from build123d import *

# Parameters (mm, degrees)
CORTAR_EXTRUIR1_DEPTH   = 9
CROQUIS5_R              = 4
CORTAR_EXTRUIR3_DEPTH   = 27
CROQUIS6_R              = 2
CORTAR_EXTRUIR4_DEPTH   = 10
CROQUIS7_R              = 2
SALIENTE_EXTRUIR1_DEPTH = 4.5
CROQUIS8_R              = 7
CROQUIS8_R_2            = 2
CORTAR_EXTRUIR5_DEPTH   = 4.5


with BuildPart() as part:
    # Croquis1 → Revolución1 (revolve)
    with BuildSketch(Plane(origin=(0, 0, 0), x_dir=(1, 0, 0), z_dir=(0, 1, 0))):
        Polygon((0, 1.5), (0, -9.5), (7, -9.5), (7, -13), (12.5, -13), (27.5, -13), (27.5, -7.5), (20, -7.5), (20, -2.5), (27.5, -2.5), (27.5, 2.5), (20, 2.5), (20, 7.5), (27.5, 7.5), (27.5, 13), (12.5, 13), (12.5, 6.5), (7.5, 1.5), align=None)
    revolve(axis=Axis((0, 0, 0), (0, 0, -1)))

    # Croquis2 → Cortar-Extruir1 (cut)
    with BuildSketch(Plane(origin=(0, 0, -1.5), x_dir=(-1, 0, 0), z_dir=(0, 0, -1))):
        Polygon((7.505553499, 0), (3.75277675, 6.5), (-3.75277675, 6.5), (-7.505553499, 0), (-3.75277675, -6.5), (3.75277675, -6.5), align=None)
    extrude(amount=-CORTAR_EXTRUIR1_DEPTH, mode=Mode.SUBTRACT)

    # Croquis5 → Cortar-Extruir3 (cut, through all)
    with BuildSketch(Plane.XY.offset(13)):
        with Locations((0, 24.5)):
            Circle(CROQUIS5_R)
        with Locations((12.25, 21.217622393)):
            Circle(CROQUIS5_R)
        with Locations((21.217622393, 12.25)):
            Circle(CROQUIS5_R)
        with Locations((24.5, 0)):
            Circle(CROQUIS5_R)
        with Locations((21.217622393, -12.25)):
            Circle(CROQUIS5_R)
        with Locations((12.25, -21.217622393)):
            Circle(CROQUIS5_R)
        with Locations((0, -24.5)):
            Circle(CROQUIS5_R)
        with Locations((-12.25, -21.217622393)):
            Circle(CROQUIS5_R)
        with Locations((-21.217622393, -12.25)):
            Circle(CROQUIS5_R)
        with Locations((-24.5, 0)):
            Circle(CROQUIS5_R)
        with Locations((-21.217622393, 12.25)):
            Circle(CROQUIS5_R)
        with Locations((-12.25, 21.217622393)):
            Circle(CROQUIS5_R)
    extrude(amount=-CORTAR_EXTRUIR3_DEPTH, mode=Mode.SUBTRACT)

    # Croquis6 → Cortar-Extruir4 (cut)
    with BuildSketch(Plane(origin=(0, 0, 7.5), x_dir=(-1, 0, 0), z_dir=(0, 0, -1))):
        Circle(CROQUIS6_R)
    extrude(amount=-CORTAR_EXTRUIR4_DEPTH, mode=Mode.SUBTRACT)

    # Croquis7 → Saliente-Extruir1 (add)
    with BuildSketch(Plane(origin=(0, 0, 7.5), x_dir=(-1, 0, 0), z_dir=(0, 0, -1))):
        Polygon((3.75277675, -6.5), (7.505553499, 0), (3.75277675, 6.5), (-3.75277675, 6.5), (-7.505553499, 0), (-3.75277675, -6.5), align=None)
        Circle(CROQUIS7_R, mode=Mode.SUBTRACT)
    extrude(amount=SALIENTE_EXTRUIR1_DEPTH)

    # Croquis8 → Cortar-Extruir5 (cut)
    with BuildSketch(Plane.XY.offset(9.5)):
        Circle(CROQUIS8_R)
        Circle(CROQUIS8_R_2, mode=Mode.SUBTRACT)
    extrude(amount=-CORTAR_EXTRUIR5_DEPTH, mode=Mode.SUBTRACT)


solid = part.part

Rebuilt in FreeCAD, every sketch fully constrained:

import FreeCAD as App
import Part
import Sketcher
from FreeCAD import Vector
Q = App.Units.Quantity


def add_polygon(sketch, points):
    """Adds a closed chain of lines whose ends are joined by coincident constraints."""
    first, n = sketch.GeometryCount, len(points)
    for a, b in zip(points, points[1:] + points[:1]):
        sketch.addGeometry(Part.LineSegment(App.Vector(*a, 0), App.Vector(*b, 0)), False)
    for i in range(n):
        sketch.addConstraint(Sketcher.Constraint("Coincident", first + i, 2, first + (i + 1) % n, 1))

doc = App.newDocument("Part")
body = doc.addObject("PartDesign::Body", "Body")

sketch1 = doc.addObject("Sketcher::SketchObject", "Sketch")
body.addObject(sketch1)
sketch1.AttachmentSupport = (doc.XZ_Plane, [""])
sketch1.MapMode = "FlatFace"
add_polygon(sketch1, [(0, -1.5), (0, 9.5), (7, 9.5), (7, 13), (27.5, 13), (27.5, 7.5), (20, 7.5), (20, 2.5), (27.5, 2.5), (27.5, -2.5), (20, -2.5), (20, -7.5), (27.5, -7.5), (27.5, -13), (12.5, -13), (12.5, -6.5), (7.5, -1.5)])
sketch1.addConstraint([
    Sketcher.Constraint("Vertical", 0),
    Sketcher.Constraint("Horizontal", 1),
    Sketcher.Constraint("Vertical", 2),
    Sketcher.Constraint("Horizontal", 3),
    Sketcher.Constraint("Vertical", 4),
    Sketcher.Constraint("Horizontal", 5),
    Sketcher.Constraint("Vertical", 6),
    Sketcher.Constraint("Horizontal", 7),
    Sketcher.Constraint("Vertical", 8),
    Sketcher.Constraint("Horizontal", 9),
    Sketcher.Constraint("Vertical", 10),
    Sketcher.Constraint("Horizontal", 11),
    Sketcher.Constraint("Vertical", 12),
    Sketcher.Constraint("Horizontal", 13),
    Sketcher.Constraint("Vertical", 14),
    Sketcher.Constraint("Horizontal", 16),
    Sketcher.Constraint("Symmetric", 6, 2, 9, 2, -1),
    Sketcher.Constraint("Symmetric", 4, 2, 11, 2, -1),
    Sketcher.Constraint("PointOnObject", 0, 2, -2),
    Sketcher.Constraint("Vertical", 4, 2, 7, 2),
    Sketcher.Constraint("Equal", 11, 16),
    Sketcher.Constraint("Equal", 6, 8),
    Sketcher.Constraint("Equal", 4, 12),
    Sketcher.Constraint("DistanceX", 1, 1, 1, 2, 7.0),
    Sketcher.Constraint("DistanceX", 13, 2, 13, 1, 15.0),
    Sketcher.Constraint("DistanceY", 0, 1, 0, 2, 11.0),
    Sketcher.Constraint("DistanceY", 6, 2, 6, 1, 5.0),
    Sketcher.Constraint("Angle", 15, Q("135 deg")),
    Sketcher.Constraint("DistanceX", 3, 1, 3, 2, 20.5),
    Sketcher.Constraint("DistanceX", 5, 2, 5, 1, 7.5),
    Sketcher.Constraint("DistanceY", 2, 1, 2, 2, 3.5),
    Sketcher.Constraint("DistanceY", 4, 2, 4, 1, 5.5),
])
revolution = doc.addObject("PartDesign::Revolution", "Revolution")
body.addObject(revolution)
revolution.Profile = sketch1
revolution.ReferenceAxis = (sketch1, ["V_Axis"])
revolution.Angle = 360

sketch2 = doc.addObject("Sketcher::SketchObject", "Sketch001")
body.addObject(sketch2)
sketch2.AttachmentSupport = (doc.XY_Plane, [""])
sketch2.MapMode = "FlatFace"
sketch2.AttachmentOffset = App.Placement(Vector(0, 0, -1.5), App.Rotation())
add_polygon(sketch2, [(-7.505553, 0), (-3.752777, 6.5), (3.752777, 6.5), (7.505553, 0), (3.752777, -6.5), (-3.752777, -6.5)])
sketch2.addConstraint([
    Sketcher.Constraint("Horizontal", 1),
    Sketcher.Constraint("Horizontal", 4),
    Sketcher.Constraint("Symmetric", 0, 2, 3, 2, -1, 1),
    Sketcher.Constraint("Symmetric", 2, 2, 5, 2, -1, 1),
    Sketcher.Constraint("PointOnObject", 2, 2, -1),
    Sketcher.Constraint("Parallel", 2, 5),
    Sketcher.Constraint("Vertical", 1, 2, 3, 2),
    Sketcher.Constraint("Angle", 0, Q("60 deg")),
    Sketcher.Constraint("DistanceY", 3, 2, 1, 2, 13.0),
    Sketcher.Constraint("DistanceX", 1, 1, 1, 2, 7.505554),
])
pocket1 = doc.addObject("PartDesign::Pocket", "Pocket")
body.addObject(pocket1)
pocket1.Profile = sketch2
pocket1.Length = 9
pocket1.Reversed = True

sketch3 = doc.addObject("Sketcher::SketchObject", "Sketch002")
body.addObject(sketch3)
sketch3.AttachmentSupport = (doc.XY_Plane, [""])
sketch3.MapMode = "FlatFace"
sketch3.AttachmentOffset = App.Placement(Vector(0, 0, 13), App.Rotation())
sketch3.addGeometry([
    Part.Circle(Vector(0, 24.5, 0), Vector(0, 0, 1), 4),
    Part.Circle(Vector(12.25, 21.217622, 0), Vector(0, 0, 1), 4),
    Part.Circle(Vector(21.217622, 12.25, 0), Vector(0, 0, 1), 4),
    Part.Circle(Vector(24.5, 0, 0), Vector(0, 0, 1), 4),
    Part.Circle(Vector(21.217622, -12.25, 0), Vector(0, 0, 1), 4),
    Part.Circle(Vector(12.25, -21.217622, 0), Vector(0, 0, 1), 4),
    Part.Circle(Vector(0, -24.5, 0), Vector(0, 0, 1), 4),
    Part.Circle(Vector(-12.25, -21.217622, 0), Vector(0, 0, 1), 4),
    Part.Circle(Vector(-21.217622, -12.25, 0), Vector(0, 0, 1), 4),
    Part.Circle(Vector(-24.5, 0, 0), Vector(0, 0, 1), 4),
    Part.Circle(Vector(-21.217622, 12.25, 0), Vector(0, 0, 1), 4),
    Part.Circle(Vector(-12.25, 21.217622, 0), Vector(0, 0, 1), 4),
], False)
sketch3.addConstraint([
    Sketcher.Constraint("Equal", 0, 1),
    Sketcher.Constraint("Equal", 1, 2),
    Sketcher.Constraint("Equal", 2, 3),
    Sketcher.Constraint("Equal", 3, 4),
    Sketcher.Constraint("Equal", 4, 5),
    Sketcher.Constraint("Equal", 5, 6),
    Sketcher.Constraint("Equal", 6, 7),
    Sketcher.Constraint("Equal", 7, 8),
    Sketcher.Constraint("Equal", 8, 9),
    Sketcher.Constraint("Equal", 9, 10),
    Sketcher.Constraint("Equal", 10, 11),
    Sketcher.Constraint("Symmetric", 0, 3, 6, 3, -1, 1),
    Sketcher.Constraint("Symmetric", 1, 3, 7, 3, -1, 1),
    Sketcher.Constraint("Symmetric", 2, 3, 8, 3, -1, 1),
    Sketcher.Constraint("Symmetric", 3, 3, 9, 3, -1, 1),
    Sketcher.Constraint("Symmetric", 4, 3, 10, 3, -1, 1),
    Sketcher.Constraint("Symmetric", 5, 3, 11, 3, -1, 1),
    Sketcher.Constraint("Symmetric", 5, 3, 7, 3, -2),
    Sketcher.Constraint("Symmetric", 4, 3, 8, 3, -2),
    Sketcher.Constraint("PointOnObject", 0, 3, -2),
    Sketcher.Constraint("PointOnObject", 3, 3, -1),
    Sketcher.Constraint("Diameter", 0, 8.0),
    Sketcher.Constraint("DistanceY", -1, 1, 0, 3, 24.5),
    Sketcher.Constraint("DistanceX", -1, 1, 3, 3, 24.5),
    Sketcher.Constraint("DistanceY", 4, 3, 2, 3, 24.5),
    Sketcher.Constraint("DistanceX", 7, 3, 5, 3, 24.5),
    Sketcher.Constraint("DistanceY", -1, 1, 1, 3, 21.217622),
    Sketcher.Constraint("DistanceX", -1, 1, 2, 3, 21.217622),
])
pocket2 = doc.addObject("PartDesign::Pocket", "Pocket001")
body.addObject(pocket2)
pocket2.Profile = sketch3
pocket2.Type = "ThroughAll"

sketch4 = doc.addObject("Sketcher::SketchObject", "Sketch003")
body.addObject(sketch4)
sketch4.AttachmentSupport = (doc.XY_Plane, [""])
sketch4.MapMode = "FlatFace"
sketch4.AttachmentOffset = App.Placement(Vector(0, 0, 7.5), App.Rotation())
sketch4.addGeometry(Part.Circle(Vector(0, 0, 0), Vector(0, 0, 1), 2), False)
sketch4.addConstraint([
    Sketcher.Constraint("Coincident", 0, 3, -1, 1),
    Sketcher.Constraint("Diameter", 0, 4.0),
])
pocket3 = doc.addObject("PartDesign::Pocket", "Pocket002")
body.addObject(pocket3)
pocket3.Profile = sketch4
pocket3.Length = 10
pocket3.Reversed = True

sketch5 = doc.addObject("Sketcher::SketchObject", "Sketch004")
body.addObject(sketch5)
sketch5.AttachmentSupport = (doc.XY_Plane, [""])
sketch5.MapMode = "FlatFace"
sketch5.AttachmentOffset = App.Placement(Vector(0, 0, 7.5), App.Rotation())
add_polygon(sketch5, [(-3.752777, -6.5), (-7.505553, 0), (-3.752777, 6.5), (3.752777, 6.5), (7.505553, 0), (3.752777, -6.5)])
sketch5.addGeometry(Part.Circle(Vector(0, 0, 0), Vector(0, 0, 1), 2), False)
sketch5.addConstraint([
    Sketcher.Constraint("Horizontal", 2),
    Sketcher.Constraint("Horizontal", 5),
    Sketcher.Constraint("Coincident", 6, 3, -1, 1),
    Sketcher.Constraint("Symmetric", 0, 2, 3, 2, -1, 1),
    Sketcher.Constraint("Symmetric", 1, 2, 4, 2, -1, 1),
    Sketcher.Constraint("PointOnObject", 0, 2, -1),
    Sketcher.Constraint("Parallel", 0, 3),
    Sketcher.Constraint("Vertical", 2, 2, 4, 2),
    Sketcher.Constraint("Diameter", 6, 4.0),
    Sketcher.Constraint("Angle", 0, Q("120 deg")),
    Sketcher.Constraint("DistanceY", 4, 2, 2, 2, 13.0),
    Sketcher.Constraint("DistanceX", 2, 1, 2, 2, 7.505554),
])
pad1 = doc.addObject("PartDesign::Pad", "Pad")
body.addObject(pad1)
pad1.Profile = sketch5
pad1.Length = 4.5
pad1.Reversed = True

sketch6 = doc.addObject("Sketcher::SketchObject", "Sketch005")
body.addObject(sketch6)
sketch6.AttachmentSupport = (doc.XY_Plane, [""])
sketch6.MapMode = "FlatFace"
sketch6.AttachmentOffset = App.Placement(Vector(0, 0, 9.5), App.Rotation())
sketch6.addGeometry([
    Part.Circle(Vector(0, 0, 0), Vector(0, 0, 1), 7),
    Part.Circle(Vector(0, 0, 0), Vector(0, 0, 1), 2),
], False)
sketch6.addConstraint([
    Sketcher.Constraint("Coincident", 0, 3, -1, 1),
    Sketcher.Constraint("Coincident", 1, 3, -1, 1),
    Sketcher.Constraint("Diameter", 0, 14.0),
    Sketcher.Constraint("Diameter", 1, 4.0),
])
pocket4 = doc.addObject("PartDesign::Pocket", "Pocket003")
body.addObject(pocket4)
pocket4.Profile = sketch6
pocket4.Length = 4.5

doc.recompute()
